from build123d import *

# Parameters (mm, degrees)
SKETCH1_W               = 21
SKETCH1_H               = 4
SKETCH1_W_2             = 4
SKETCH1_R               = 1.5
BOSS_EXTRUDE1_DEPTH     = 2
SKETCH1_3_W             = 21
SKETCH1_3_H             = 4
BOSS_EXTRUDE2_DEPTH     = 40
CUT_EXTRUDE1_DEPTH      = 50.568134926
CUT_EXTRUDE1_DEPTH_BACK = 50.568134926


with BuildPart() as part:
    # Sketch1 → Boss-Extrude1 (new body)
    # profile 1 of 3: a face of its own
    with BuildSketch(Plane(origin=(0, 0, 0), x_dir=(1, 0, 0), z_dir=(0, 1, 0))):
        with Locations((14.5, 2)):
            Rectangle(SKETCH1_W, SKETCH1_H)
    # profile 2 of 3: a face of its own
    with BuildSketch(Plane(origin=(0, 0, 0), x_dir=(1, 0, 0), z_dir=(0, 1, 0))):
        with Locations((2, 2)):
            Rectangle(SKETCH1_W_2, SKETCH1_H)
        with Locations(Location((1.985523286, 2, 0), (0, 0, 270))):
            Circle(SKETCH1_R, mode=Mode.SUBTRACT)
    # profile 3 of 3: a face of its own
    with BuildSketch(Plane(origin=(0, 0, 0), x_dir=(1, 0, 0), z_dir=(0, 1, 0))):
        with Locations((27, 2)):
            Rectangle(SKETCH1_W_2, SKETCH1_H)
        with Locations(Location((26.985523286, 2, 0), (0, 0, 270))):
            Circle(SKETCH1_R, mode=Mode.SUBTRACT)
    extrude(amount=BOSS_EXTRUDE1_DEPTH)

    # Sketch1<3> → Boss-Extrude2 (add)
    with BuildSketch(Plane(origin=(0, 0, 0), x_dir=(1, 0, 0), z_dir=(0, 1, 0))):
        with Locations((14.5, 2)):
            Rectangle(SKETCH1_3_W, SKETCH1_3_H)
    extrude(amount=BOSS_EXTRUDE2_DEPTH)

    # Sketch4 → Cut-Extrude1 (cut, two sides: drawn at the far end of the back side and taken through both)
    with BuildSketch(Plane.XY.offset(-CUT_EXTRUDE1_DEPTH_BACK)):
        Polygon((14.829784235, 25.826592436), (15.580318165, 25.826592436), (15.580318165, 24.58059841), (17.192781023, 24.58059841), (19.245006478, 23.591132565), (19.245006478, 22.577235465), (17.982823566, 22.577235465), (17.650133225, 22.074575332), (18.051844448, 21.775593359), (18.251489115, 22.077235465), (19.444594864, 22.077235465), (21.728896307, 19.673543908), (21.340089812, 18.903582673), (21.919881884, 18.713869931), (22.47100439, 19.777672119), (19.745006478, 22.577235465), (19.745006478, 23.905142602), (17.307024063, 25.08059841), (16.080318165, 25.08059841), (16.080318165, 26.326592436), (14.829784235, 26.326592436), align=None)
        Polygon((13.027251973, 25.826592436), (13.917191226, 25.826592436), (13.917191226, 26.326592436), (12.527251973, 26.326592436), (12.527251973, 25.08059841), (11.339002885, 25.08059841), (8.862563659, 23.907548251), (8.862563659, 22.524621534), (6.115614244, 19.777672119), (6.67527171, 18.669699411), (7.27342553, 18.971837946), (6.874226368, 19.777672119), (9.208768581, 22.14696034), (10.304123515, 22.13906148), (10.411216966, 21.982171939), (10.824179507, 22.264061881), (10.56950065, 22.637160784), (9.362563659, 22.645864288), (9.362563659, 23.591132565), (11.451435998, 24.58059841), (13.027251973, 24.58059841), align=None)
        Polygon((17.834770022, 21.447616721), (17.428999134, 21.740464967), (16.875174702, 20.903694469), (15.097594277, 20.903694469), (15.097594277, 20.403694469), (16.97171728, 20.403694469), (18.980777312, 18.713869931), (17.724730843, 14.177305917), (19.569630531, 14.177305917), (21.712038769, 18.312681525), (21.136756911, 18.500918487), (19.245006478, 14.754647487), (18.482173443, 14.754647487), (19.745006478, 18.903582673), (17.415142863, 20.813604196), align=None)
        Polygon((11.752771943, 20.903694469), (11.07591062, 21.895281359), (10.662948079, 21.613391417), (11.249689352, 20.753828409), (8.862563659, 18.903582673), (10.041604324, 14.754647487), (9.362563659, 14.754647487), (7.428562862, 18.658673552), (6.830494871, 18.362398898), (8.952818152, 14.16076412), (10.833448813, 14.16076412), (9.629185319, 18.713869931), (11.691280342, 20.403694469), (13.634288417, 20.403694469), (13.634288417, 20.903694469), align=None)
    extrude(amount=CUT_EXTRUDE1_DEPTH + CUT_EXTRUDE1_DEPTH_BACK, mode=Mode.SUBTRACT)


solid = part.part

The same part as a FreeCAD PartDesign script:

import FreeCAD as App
import Part
import Sketcher

V = App.Vector

doc = App.newDocument("Part")
params = doc.addObject("Spreadsheet::Sheet", "Params")
for row, (alias, value) in enumerate([
    ("sketch1_diameter", "3 mm"),
    ("sketch1_width", "29 mm"),
    ("sketch1_height", "4 mm"),
    ("pad1_length", "2 mm"),
    ("sketch2_width", "21 mm"),
    ("sketch2_height", "4 mm"),
    ("pad2_length", "40 mm"),
    ("sketch3_height", "0.5 mm"),
    ("sketch3_height2", "0.5 mm"),
    ("sketch3_height3", "0.5 mm"),
    ("sketch3_height4", "0.5 mm"),
    ("sketch3_length", "0.5 mm"),
], start=1):
    params.set(f"A{row}", alias)
    params.set(f"B{row}", "=" + value)
    params.setAlias(f"B{row}", alias)

body = doc.addObject("PartDesign::Body", "Body")

sketch1 = body.newObject("Sketcher::SketchObject", "Sketch")
sketch1.AttachmentSupport = (doc.getObject("XZ_Plane"), [""])
sketch1.MapMode = "FlatFace"
sketch1.addGeometry([
    Part.LineSegment(V(29, 0, 0), V(29, -4, 0)),
    Part.LineSegment(V(29, -4, 0), V(0, -4, 0)),
    Part.LineSegment(V(0, -4, 0), V(0, 0, 0)),
    Part.LineSegment(V(0, 0, 0), V(29, 0, 0)),
    Part.Circle(V(1.985523, -2, 0), V(0, 0, 1), 1.5),
    Part.Circle(V(26.985523, -2, 0), V(0, 0, 1), 1.5),
], False)
sketch1.addConstraint([
    Sketcher.Constraint("Coincident", 0, 2, 1, 1),
    Sketcher.Constraint("Coincident", 1, 2, 2, 1),
    Sketcher.Constraint("Coincident", 2, 2, 3, 1),
    Sketcher.Constraint("Coincident", 3, 2, 0, 1),
    Sketcher.Constraint("Vertical", 0),
    Sketcher.Constraint("Horizontal", 1),
    Sketcher.Constraint("Vertical", 2),
    Sketcher.Constraint("Horizontal", 3),
    Sketcher.Constraint("Coincident", 2, 2, -1, 1),
    Sketcher.Constraint("Equal", 4, 5),
    Sketcher.Constraint("Horizontal", 4, 3, 5, 3),
    Sketcher.Constraint("Diameter", 4, 3.0),
    Sketcher.Constraint("DistanceX", 1, 2, 1, 1, 29.0),
    Sketcher.Constraint("DistanceY", 0, 2, 0, 1, 4.0),
    Sketcher.Constraint("DistanceY", 4, 3, -1, 1, 2.0),
    Sketcher.Constraint("DistanceX", 4, 3, 5, 3, 25.0),
    Sketcher.Constraint("DistanceX", -1, 1, 4, 3, 1.985523),
])
sketch1.setExpression("Constraints[11]", "Params.sketch1_diameter")
sketch1.setExpression("Constraints[12]", "Params.sketch1_width")
sketch1.setExpression("Constraints[13]", "Params.sketch1_height")
pad1 = body.newObject("PartDesign::Pad", "Pad")
pad1.Profile = sketch1
pad1.setExpression("Length", "Params.pad1_length")
pad1.Reversed = True

sketch2 = body.newObject("Sketcher::SketchObject", "Sketch001")
sketch2.AttachmentSupport = (doc.getObject("XZ_Plane"), [""])
sketch2.MapMode = "FlatFace"
sketch2.addGeometry([
    Part.LineSegment(V(4, -4, 0), V(4, 0, 0)),
    Part.LineSegment(V(4, 0, 0), V(25, 0, 0)),
    Part.LineSegment(V(25, 0, 0), V(25, -4, 0)),
    Part.LineSegment(V(25, -4, 0), V(4, -4, 0)),
], False)
sketch2.addConstraint([
    Sketcher.Constraint("Coincident", 0, 2, 1, 1),
    Sketcher.Constraint("Coincident", 1, 2, 2, 1),
    Sketcher.Constraint("Coincident", 2, 2, 3, 1),
    Sketcher.Constraint("Coincident", 3, 2, 0, 1),
    Sketcher.Constraint("Vertical", 0),
    Sketcher.Constraint("Horizontal", 1),
    Sketcher.Constraint("Vertical", 2),
    Sketcher.Constraint("Horizontal", 3),
    Sketcher.Constraint("PointOnObject", 0, 2, -1),
    Sketcher.Constraint("DistanceX", 1, 1, 1, 2, 21.0),
    Sketcher.Constraint("DistanceY", 0, 1, 0, 2, 4.0),
    Sketcher.Constraint("DistanceX", -1, 1, 0, 2, 4.0),
])
sketch2.setExpression("Constraints[9]", "Params.sketch2_width")
sketch2.setExpression("Constraints[10]", "Params.sketch2_height")
pad2 = body.newObject("PartDesign::Pad", "Pad001")
pad2.Profile = sketch2
pad2.setExpression("Length", "Params.pad2_length")
pad2.Reversed = True

sketch3 = body.newObject("Sketcher::SketchObject", "Sketch002")
sketch3.AttachmentSupport = (doc.getObject("XY_Plane"), [""])
sketch3.MapMode = "FlatFace"
sketch3.addGeometry([
    Part.LineSegment(V(14.829784, 25.826592, 0), V(15.580318, 25.826592, 0)),
    Part.LineSegment(V(15.580318, 25.826592, 0), V(15.580318, 24.580598, 0)),
    Part.LineSegment(V(15.580318, 24.580598, 0), V(17.192781, 24.580598, 0)),
    Part.LineSegment(V(17.192781, 24.580598, 0), V(19.245006, 23.591133, 0)),
    Part.LineSegment(V(19.245006, 23.591133, 0), V(19.245006, 22.577235, 0)),
    Part.LineSegment(V(19.245006, 22.577235, 0), V(17.982824, 22.577235, 0)),
    Part.LineSegment(V(17.982824, 22.577235, 0), V(17.650133, 22.074575, 0)),
    Part.LineSegment(V(17.650133, 22.074575, 0), V(18.051844, 21.775593, 0)),
    Part.LineSegment(V(18.051844, 21.775593, 0), V(18.251489, 22.077235, 0)),
    Part.LineSegment(V(18.251489, 22.077235, 0), V(19.444595, 22.077235, 0)),
    Part.LineSegment(V(19.444595, 22.077235, 0), V(21.728896, 19.673544, 0)),
    Part.LineSegment(V(21.728896, 19.673544, 0), V(21.34009, 18.903583, 0)),
    Part.LineSegment(V(21.34009, 18.903583, 0), V(21.919882, 18.71387, 0)),
    Part.LineSegment(V(21.919882, 18.71387, 0), V(22.471004, 19.777672, 0)),
    Part.LineSegment(V(22.471004, 19.777672, 0), V(19.745006, 22.577235, 0)),
    Part.LineSegment(V(19.745006, 22.577235, 0), V(19.745006, 23.905143, 0)),
    Part.LineSegment(V(19.745006, 23.905143, 0), V(17.307024, 25.080598, 0)),
    Part.LineSegment(V(17.307024, 25.080598, 0), V(16.080318, 25.080598, 0)),
    Part.LineSegment(V(16.080318, 25.080598, 0), V(16.080318, 26.326592, 0)),
    Part.LineSegment(V(16.080318, 26.326592, 0), V(14.829784, 26.326592, 0)),
    Part.LineSegment(V(14.829784, 26.326592, 0), V(14.829784, 25.826592, 0)),
    Part.LineSegment(V(13.027252, 25.826592, 0), V(13.917191, 25.826592, 0)),
    Part.LineSegment(V(13.917191, 25.826592, 0), V(13.917191, 26.326592, 0)),
    Part.LineSegment(V(13.917191, 26.326592, 0), V(12.527252, 26.326592, 0)),
    Part.LineSegment(V(12.527252, 26.326592, 0), V(12.527252, 25.080598, 0)),
    Part.LineSegment(V(12.527252, 25.080598, 0), V(11.339003, 25.080598, 0)),
    Part.LineSegment(V(11.339003, 25.080598, 0), V(8.862564, 23.907548, 0)),
    Part.LineSegment(V(8.862564, 23.907548, 0), V(8.862564, 22.524622, 0)),
    Part.LineSegment(V(8.862564, 22.524622, 0), V(6.115614, 19.777672, 0)),
    Part.LineSegment(V(6.115614, 19.777672, 0), V(6.675272, 18.669699, 0)),
    Part.LineSegment(V(6.675272, 18.669699, 0), V(7.273426, 18.971838, 0)),
    Part.LineSegment(V(7.273426, 18.971838, 0), V(6.874226, 19.777672, 0)),
    Part.LineSegment(V(6.874226, 19.777672, 0), V(9.208769, 22.14696, 0)),
    Part.LineSegment(V(9.208769, 22.14696, 0), V(10.304124, 22.139061, 0)),
    Part.LineSegment(V(10.304124, 22.139061, 0), V(10.411217, 21.982172, 0)),
    Part.LineSegment(V(10.411217, 21.982172, 0), V(10.82418, 22.264062, 0)),
    Part.LineSegment(V(10.82418, 22.264062, 0), V(10.569501, 22.637161, 0)),
    Part.LineSegment(V(10.569501, 22.637161, 0), V(9.362564, 22.645864, 0)),
    Part.LineSegment(V(9.362564, 22.645864, 0), V(9.362564, 23.591133, 0)),
    Part.LineSegment(V(9.362564, 23.591133, 0), V(11.451436, 24.580598, 0)),
    Part.LineSegment(V(11.451436, 24.580598, 0), V(13.027252, 24.580598, 0)),
    Part.LineSegment(V(13.027252, 24.580598, 0), V(13.027252, 25.826592, 0)),
    Part.LineSegment(V(17.83477, 21.447617, 0), V(17.428999, 21.740465, 0)),
    Part.LineSegment(V(17.428999, 21.740465, 0), V(16.875175, 20.903694, 0)),
    Part.LineSegment(V(16.875175, 20.903694, 0), V(15.097594, 20.903694, 0)),
    Part.LineSegment(V(15.097594, 20.903694, 0), V(15.097594, 20.403694, 0)),
    Part.LineSegment(V(15.097594, 20.403694, 0), V(16.971717, 20.403694, 0)),
    Part.LineSegment(V(16.971717, 20.403694, 0), V(18.980777, 18.71387, 0)),
    Part.LineSegment(V(18.980777, 18.71387, 0), V(17.724731, 14.177306, 0)),
    Part.LineSegment(V(17.724731, 14.177306, 0), V(19.569631, 14.177306, 0)),
    Part.LineSegment(V(19.569631, 14.177306, 0), V(21.712039, 18.312682, 0)),
    Part.LineSegment(V(21.712039, 18.312682, 0), V(21.136757, 18.500918, 0)),
    Part.LineSegment(V(21.136757, 18.500918, 0), V(19.245006, 14.754647, 0)),
    Part.LineSegment(V(19.245006, 14.754647, 0), V(18.482173, 14.754647, 0)),
    Part.LineSegment(V(18.482173, 14.754647, 0), V(19.745006, 18.903583, 0)),
    Part.LineSegment(V(19.745006, 18.903583, 0), V(17.415143, 20.813604, 0)),
    Part.LineSegment(V(17.415143, 20.813604, 0), V(17.83477, 21.447617, 0)),
    Part.LineSegment(V(11.752772, 20.903694, 0), V(11.075911, 21.895281, 0)),
    Part.LineSegment(V(11.075911, 21.895281, 0), V(10.662948, 21.613391, 0)),
    Part.LineSegment(V(10.662948, 21.613391, 0), V(11.249689, 20.753828, 0)),
    Part.LineSegment(V(11.249689, 20.753828, 0), V(8.862564, 18.903583, 0)),
    Part.LineSegment(V(8.862564, 18.903583, 0), V(10.041604, 14.754647, 0)),
    Part.LineSegment(V(10.041604, 14.754647, 0), V(9.362564, 14.754647, 0)),
    Part.LineSegment(V(9.362564, 14.754647, 0), V(7.428563, 18.658674, 0)),
    Part.LineSegment(V(7.428563, 18.658674, 0), V(6.830495, 18.362399, 0)),
    Part.LineSegment(V(6.830495, 18.362399, 0), V(8.952818, 14.160764, 0)),
    Part.LineSegment(V(8.952818, 14.160764, 0), V(10.833449, 14.160764, 0)),
    Part.LineSegment(V(10.833449, 14.160764, 0), V(9.629185, 18.71387, 0)),
    Part.LineSegment(V(9.629185, 18.71387, 0), V(11.69128, 20.403694, 0)),
    Part.LineSegment(V(11.69128, 20.403694, 0), V(13.634288, 20.403694, 0)),
    Part.LineSegment(V(13.634288, 20.403694, 0), V(13.634288, 20.903694, 0)),
    Part.LineSegment(V(13.634288, 20.903694, 0), V(11.752772, 20.903694, 0)),
], False)
sketch3.addConstraint([
    Sketcher.Constraint("Coincident", 0, 2, 1, 1),
    Sketcher.Constraint("Coincident", 1, 2, 2, 1),
    Sketcher.Constraint("Coincident", 2, 2, 3, 1),
    Sketcher.Constraint("Coincident", 3, 2, 4, 1),
    Sketcher.Constraint("Coincident", 4, 2, 5, 1),
    Sketcher.Constraint("Coincident", 5, 2, 6, 1),
    Sketcher.Constraint("Coincident", 6, 2, 7, 1),
    Sketcher.Constraint("Coincident", 7, 2, 8, 1),
    Sketcher.Constraint("Coincident", 8, 2, 9, 1),
    Sketcher.Constraint("Coincident", 9, 2, 10, 1),
    Sketcher.Constraint("Coincident", 10, 2, 11, 1),
    Sketcher.Constraint("Coincident", 11, 2, 12, 1),
    Sketcher.Constraint("Coincident", 12, 2, 13, 1),
    Sketcher.Constraint("Coincident", 13, 2, 14, 1),
    Sketcher.Constraint("Coincident", 14, 2, 15, 1),
    Sketcher.Constraint("Coincident", 15, 2, 16, 1),
    Sketcher.Constraint("Coincident", 16, 2, 17, 1),
    Sketcher.Constraint("Coincident", 17, 2, 18, 1),
    Sketcher.Constraint("Coincident", 18, 2, 19, 1),
    Sketcher.Constraint("Coincident", 19, 2, 20, 1),
    Sketcher.Constraint("Coincident", 20, 2, 0, 1),
    Sketcher.Constraint("Coincident", 21, 2, 22, 1),
    Sketcher.Constraint("Coincident", 22, 2, 23, 1),
    Sketcher.Constraint("Coincident", 23, 2, 24, 1),
    Sketcher.Constraint("Coincident", 24, 2, 25, 1),
    Sketcher.Constraint("Coincident", 25, 2, 26, 1),
    Sketcher.Constraint("Coincident", 26, 2, 27, 1),
    Sketcher.Constraint("Coincident", 27, 2, 28, 1),
    Sketcher.Constraint("Coincident", 28, 2, 29, 1),
    Sketcher.Constraint("Coincident", 29, 2, 30, 1),
    Sketcher.Constraint("Coincident", 30, 2, 31, 1),
    Sketcher.Constraint("Coincident", 31, 2, 32, 1),
    Sketcher.Constraint("Coincident", 32, 2, 33, 1),
    Sketcher.Constraint("Coincident", 33, 2, 34, 1),
    Sketcher.Constraint("Coincident", 34, 2, 35, 1),
    Sketcher.Constraint("Coincident", 35, 2, 36, 1),
    Sketcher.Constraint("Coincident", 36, 2, 37, 1),
    Sketcher.Constraint("Coincident", 37, 2, 38, 1),
    Sketcher.Constraint("Coincident", 38, 2, 39, 1),
    Sketcher.Constraint("Coincident", 39, 2, 40, 1),
    Sketcher.Constraint("Coincident", 40, 2, 41, 1),
    Sketcher.Constraint("Coincident", 41, 2, 21, 1),
    Sketcher.Constraint("Coincident", 42, 2, 43, 1),
    Sketcher.Constraint("Coincident", 43, 2, 44, 1),
    Sketcher.Constraint("Coincident", 44, 2, 45, 1),
    Sketcher.Constraint("Coincident", 45, 2, 46, 1),
    Sketcher.Constraint("Coincident", 46, 2, 47, 1),
    Sketcher.Constraint("Coincident", 47, 2, 48, 1),
    Sketcher.Constraint("Coincident", 48, 2, 49, 1),
    Sketcher.Constraint("Coincident", 49, 2, 50, 1),
    Sketcher.Constraint("Coincident", 50, 2, 51, 1),
    Sketcher.Constraint("Coincident", 51, 2, 52, 1),
    Sketcher.Constraint("Coincident", 52, 2, 53, 1),
    Sketcher.Constraint("Coincident", 53, 2, 54, 1),
    Sketcher.Constraint("Coincident", 54, 2, 55, 1),
    Sketcher.Constraint("Coincident", 55, 2, 56, 1),
    Sketcher.Constraint("Coincident", 56, 2, 42, 1),
    Sketcher.Constraint("Coincident", 57, 2, 58, 1),
    Sketcher.Constraint("Coincident", 58, 2, 59, 1),
    Sketcher.Constraint("Coincident", 59, 2, 60, 1),
    Sketcher.Constraint("Coincident", 60, 2, 61, 1),
    Sketcher.Constraint("Coincident", 61, 2, 62, 1),
    Sketcher.Constraint("Coincident", 62, 2, 63, 1),
    Sketcher.Constraint("Coincident", 63, 2, 64, 1),
    Sketcher.Constraint("Coincident", 64, 2, 65, 1),
    Sketcher.Constraint("Coincident", 65, 2, 66, 1),
    Sketcher.Constraint("Coincident", 66, 2, 67, 1),
    Sketcher.Constraint("Coincident", 67, 2, 68, 1),
    Sketcher.Constraint("Coincident", 68, 2, 69, 1),
    Sketcher.Constraint("Coincident", 69, 2, 70, 1),
    Sketcher.Constraint("Coincident", 70, 2, 71, 1),
    Sketcher.Constraint("Coincident", 71, 2, 57, 1),
    Sketcher.Constraint("Horizontal", 0),
    Sketcher.Constraint("Vertical", 1),
    Sketcher.Constraint("Horizontal", 2),
    Sketcher.Constraint("Vertical", 4),
    Sketcher.Constraint("Horizontal", 5),
    Sketcher.Constraint("Horizontal", 9),
    Sketcher.Constraint("Vertical", 15),
    Sketcher.Constraint("Horizontal", 17),
    Sketcher.Constraint("Vertical", 18),
    Sketcher.Constraint("Horizontal", 19),
    Sketcher.Constraint("Vertical", 20),
    Sketcher.Constraint("Horizontal", 21),
    Sketcher.Constraint("Vertical", 22),
    Sketcher.Constraint("Horizontal", 23),
    Sketcher.Constraint("Vertical", 24),
    Sketcher.Constraint("Horizontal", 25),
    Sketcher.Constraint("Vertical", 27),
    Sketcher.Constraint("Vertical", 38),
    Sketcher.Constraint("Horizontal", 40),
    Sketcher.Constraint("Vertical", 41),
    Sketcher.Constraint("Horizontal", 44),
    Sketcher.Constraint("Vertical", 45),
    Sketcher.Constraint("Horizontal", 46),
    Sketcher.Constraint("Horizontal", 49),
    Sketcher.Constraint("Horizontal", 53),
    Sketcher.Constraint("Horizontal", 62),
    Sketcher.Constraint("Horizontal", 66),
    Sketcher.Constraint("Horizontal", 69),
    Sketcher.Constraint("Vertical", 70),
    Sketcher.Constraint("Horizontal", 71),
    Sketcher.Constraint("DistanceY", 20, 2, 20, 1, 0.5),
    Sketcher.Constraint("DistanceY", 22, 1, 22, 2, 0.5),
    Sketcher.Constraint("DistanceY", 45, 2, 45, 1, 0.5),
    Sketcher.Constraint("DistanceY", 70, 1, 70, 2, 0.5),
    Sketcher.Constraint("Distance", 35, 0.5),
    Sketcher.Constraint("Distance", 58, 0.5),
    Sketcher.Constraint("DistanceX", 49, 1, 49, 2, 1.8449),
    Sketcher.Constraint("DistanceX", -1, 1, 42, 2, 17.428999),
    Sketcher.Constraint("Distance", 32, 3.326201),
    Sketcher.Constraint("Distance", 56, 0.760302),
    Sketcher.Constraint("DistanceX", 21, 1, 21, 2, 0.889939),
    Sketcher.Constraint("DistanceX", 23, 2, 23, 1, 1.389939),
    Sketcher.Constraint("DistanceX", 25, 2, 25, 1, 1.188249),
    Sketcher.Constraint("DistanceX", 44, 2, 44, 1, 1.77758),
    Sketcher.Constraint("DistanceX", 62, 2, 62, 1, 0.679041),
    Sketcher.Constraint("DistanceX", 66, 1, 66, 2, 1.880631),
    Sketcher.Constraint("DistanceX", 69, 1, 69, 2, 1.943008),
    Sketcher.Constraint("DistanceY", 38, 1, 38, 2, 0.945268),
    Sketcher.Constraint("DistanceY", -1, 1, 1, 2, 24.580598),
    Sketcher.Constraint("DistanceY", -1, 1, 16, 2, 25.080598),
    Sketcher.Constraint("DistanceY", -1, 1, 24, 2, 25.080598),
    Sketcher.Constraint("DistanceY", -1, 1, 29, 2, 18.669699),
    Sketcher.Constraint("DistanceX", -1, 1, 36, 2, 10.569501),
    Sketcher.Constraint("DistanceY", -1, 1, 39, 2, 24.580598),
    Sketcher.Constraint("DistanceY", -1, 1, 64, 2, 18.362399),
    Sketcher.Constraint("Distance", 7, 0.500762),
    Sketcher.Constraint("Distance", 11, 0.862561),
    Sketcher.Constraint("Distance", 12, 0.610041),
    Sketcher.Constraint("Distance", 14, 3.907508),
    Sketcher.Constraint("Distance", 26, 2.740219),
    Sketcher.Constraint("Distance", 30, 0.670131),
    Sketcher.Constraint("Distance", 37, 1.206968),
    Sketcher.Constraint("Distance", 39, 2.31137),
    Sketcher.Constraint("Distance", 42, 0.50041),
    Sketcher.Constraint("Distance", 47, 2.625229),
    Sketcher.Constraint("Distance", 60, 3.020228),
    Sketcher.Constraint("Distance", 63, 4.356808),
    Sketcher.Constraint("Distance", 64, 0.667431),
    Sketcher.Constraint("DistanceX", 0, 1, 0, 2, 0.750534),
    Sketcher.Constraint("DistanceX", 2, 1, 2, 2, 1.612463),
    Sketcher.Constraint("DistanceX", 5, 2, 5, 1, 1.262183),
    Sketcher.Constraint("DistanceX", 9, 1, 9, 2, 1.193106),
    Sketcher.Constraint("DistanceX", 17, 2, 17, 1, 1.226706),
    Sketcher.Constraint("DistanceX", 19, 2, 19, 1, 1.250534),
    Sketcher.Constraint("DistanceX", 40, 1, 40, 2, 1.575816),
    Sketcher.Constraint("DistanceX", 46, 1, 46, 2, 1.874123),
    Sketcher.Constraint("DistanceX", 53, 2, 53, 1, 0.762833),
    Sketcher.Constraint("DistanceX", 71, 2, 71, 1, 1.881516),
    Sketcher.Constraint("DistanceY", 1, 2, 1, 1, 1.245994),
    Sketcher.Constraint("DistanceY", 4, 2, 4, 1, 1.013897),
    Sketcher.Constraint("DistanceY", 15, 1, 15, 2, 1.327907),
    Sketcher.Constraint("DistanceY", 24, 2, 24, 1, 1.245994),
    Sketcher.Constraint("DistanceY", 27, 2, 27, 1, 1.382927),
    Sketcher.Constraint("DistanceX", -1, 1, 0, 2, 15.580318),
    Sketcher.Constraint("DistanceX", -1, 1, 8, 2, 18.251489),
    Sketcher.Constraint("DistanceX", -1, 1, 11, 2, 21.34009),
    Sketcher.Constraint("DistanceX", -1, 1, 12, 2, 21.919882),
    Sketcher.Constraint("DistanceY", -1, 1, 12, 2, 18.71387),
    Sketcher.Constraint("DistanceX", -1, 1, 21, 2, 13.917191),
    Sketcher.Constraint("DistanceY", -1, 1, 26, 2, 23.907548),
    Sketcher.Constraint("DistanceX", -1, 1, 29, 2, 6.675272),
    Sketcher.Constraint("DistanceX", -1, 1, 32, 2, 9.208769),
    Sketcher.Constraint("DistanceY", -1, 1, 32, 2, 22.14696),
    Sketcher.Constraint("DistanceY", -1, 1, 33, 2, 22.139061),
    Sketcher.Constraint("DistanceY", -1, 1, 34, 2, 21.982172),
    Sketcher.Constraint("DistanceX", -1, 1, 35, 2, 10.82418),
    Sketcher.Constraint("DistanceY", -1, 1, 35, 2, 22.264062),
    Sketcher.Constraint("DistanceY", -1, 1, 36, 2, 22.637161),
    Sketcher.Constraint("DistanceY", -1, 1, 47, 2, 18.71387),
    Sketcher.Constraint("DistanceX", -1, 1, 48, 2, 17.724731),
    Sketcher.Constraint("DistanceX", -1, 1, 50, 2, 21.712039),
    Sketcher.Constraint("DistanceY", -1, 1, 50, 2, 18.312682),
    Sketcher.Constraint("DistanceY", -1, 1, 51, 2, 18.500918),
    Sketcher.Constraint("DistanceX", -1, 1, 56, 2, 17.83477),
    Sketcher.Constraint("DistanceX", -1, 1, 57, 2, 11.075911),
    Sketcher.Constraint("DistanceY", -1, 1, 57, 2, 21.895281),
    Sketcher.Constraint("DistanceX", -1, 1, 58, 2, 10.662948),
    Sketcher.Constraint("DistanceX", -1, 1, 59, 2, 11.249689),
    Sketcher.Constraint("DistanceY", -1, 1, 59, 2, 20.753828),
    Sketcher.Constraint("DistanceX", -1, 1, 65, 2, 8.952818),
    Sketcher.Constraint("DistanceY", -1, 1, 67, 2, 18.71387),
    Sketcher.Constraint("DistanceX", -1, 1, 68, 2, 11.69128),
    Sketcher.Constraint("Distance", 3, 2.278305),
    Sketcher.Constraint("Distance", 6, 0.602785),
    Sketcher.Constraint("Distance", 8, 0.361726),
    Sketcher.Constraint("Distance", 10, 3.315986),
    Sketcher.Constraint("Distance", 13, 1.198086),
    Sketcher.Constraint("Distance", 16, 2.706558),
    Sketcher.Constraint("Distance", 28, 3.884773),
    Sketcher.Constraint("Distance", 29, 1.241298),
    Sketcher.Constraint("Distance", 31, 0.899293),
    Sketcher.Constraint("Distance", 33, 1.095383),
    Sketcher.Constraint("Distance", 43, 1.003447),
    Sketcher.Constraint("Distance", 48, 4.707235),
    Sketcher.Constraint("Distance", 50, 4.657386),
    Sketcher.Constraint("Distance", 51, 0.605295),
    Sketcher.Constraint("Distance", 52, 4.196816),
    Sketcher.Constraint("Distance", 54, 4.336866),
    Sketcher.Constraint("Distance", 55, 3.012714),
    Sketcher.Constraint("Distance", 57, 1.200577),
    Sketcher.Constraint("Distance", 61, 4.313212),
    Sketcher.Constraint("Distance", 65, 4.707228),
    Sketcher.Constraint("Distance", 67, 4.709673),
    Sketcher.Constraint("Distance", 68, 2.666035),
    Sketcher.Constraint("DistanceX", -1, 1, 3, 2, 19.245006),
    Sketcher.Constraint("DistanceX", -1, 1, 6, 2, 17.650133),
    Sketcher.Constraint("DistanceX", -1, 1, 7, 2, 18.051844),
    Sketcher.Constraint("DistanceX", -1, 1, 13, 2, 22.471004),
    Sketcher.Constraint("DistanceX", -1, 1, 30, 2, 7.273426),
    Sketcher.Constraint("DistanceY", -1, 1, 42, 2, 21.740465),
    Sketcher.Constraint("DistanceX", -1, 1, 52, 2, 19.245006),
    Sketcher.Constraint("DistanceX", -1, 1, 54, 2, 19.745006),
    Sketcher.Constraint("DistanceX", -1, 1, 60, 2, 8.862564),
    Sketcher.Constraint("DistanceX", -1, 1, 61, 2, 10.041604),
])
sketch3.setExpression("Constraints[102]", "Params.sketch3_height")
sketch3.setExpression("Constraints[103]", "Params.sketch3_height2")
sketch3.setExpression("Constraints[104]", "Params.sketch3_height3")
sketch3.setExpression("Constraints[105]", "Params.sketch3_height4")
sketch3.setExpression("Constraints[106]", "Params.sketch3_length")
pocket1 = body.newObject("PartDesign::Pocket", "Pocket")
pocket1.Profile = sketch3
pocket1.Type = "ThroughAll"
pocket1.Midplane = True

doc.recompute()
